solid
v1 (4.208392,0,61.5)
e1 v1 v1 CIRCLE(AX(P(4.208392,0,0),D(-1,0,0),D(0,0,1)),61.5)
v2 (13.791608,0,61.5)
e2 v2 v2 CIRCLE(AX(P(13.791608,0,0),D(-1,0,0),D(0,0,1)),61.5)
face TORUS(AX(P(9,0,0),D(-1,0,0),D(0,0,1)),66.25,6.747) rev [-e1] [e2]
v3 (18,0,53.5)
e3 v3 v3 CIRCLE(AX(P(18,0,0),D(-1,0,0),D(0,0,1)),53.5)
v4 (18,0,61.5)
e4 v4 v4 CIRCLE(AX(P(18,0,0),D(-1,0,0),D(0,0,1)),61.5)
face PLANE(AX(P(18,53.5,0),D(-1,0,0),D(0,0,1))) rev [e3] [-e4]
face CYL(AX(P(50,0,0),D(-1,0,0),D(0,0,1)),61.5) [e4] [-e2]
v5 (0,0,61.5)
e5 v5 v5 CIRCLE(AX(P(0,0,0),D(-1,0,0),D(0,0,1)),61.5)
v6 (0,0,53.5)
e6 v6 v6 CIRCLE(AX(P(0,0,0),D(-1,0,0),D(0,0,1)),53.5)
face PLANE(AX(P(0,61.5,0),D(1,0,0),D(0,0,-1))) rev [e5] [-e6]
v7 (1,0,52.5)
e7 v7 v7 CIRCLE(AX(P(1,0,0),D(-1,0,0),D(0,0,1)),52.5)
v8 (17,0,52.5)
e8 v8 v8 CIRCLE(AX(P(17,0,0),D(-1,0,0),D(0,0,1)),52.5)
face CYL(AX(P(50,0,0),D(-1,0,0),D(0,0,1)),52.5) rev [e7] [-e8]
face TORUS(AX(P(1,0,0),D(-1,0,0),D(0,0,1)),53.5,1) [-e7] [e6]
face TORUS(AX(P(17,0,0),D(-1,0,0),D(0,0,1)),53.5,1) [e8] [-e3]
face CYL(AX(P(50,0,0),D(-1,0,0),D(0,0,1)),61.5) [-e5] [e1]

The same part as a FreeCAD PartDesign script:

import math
import FreeCAD as App
import Part
import Sketcher

V = App.Vector

doc = App.newDocument("Part")
body = doc.addObject("PartDesign::Body", "Body")

sketch1 = doc.addObject("Sketcher::SketchObject", "Sketch")
body.addObject(sketch1)
sketch1.AttachmentSupport = (doc.XY_Plane, [""])
sketch1.MapMode = "FlatFace"
sketch1.addGeometry(Part.LineSegment(V(1, 52.5, 0), V(17, 52.5, 0)), False)
sketch1.addGeometry(Part.ArcOfCircle(Part.Circle(V(17, 53.5, 0), V(0, 0, 1), 1), math.radians(-90), math.radians(0)), False)
sketch1.addGeometry(Part.LineSegment(V(18, 53.5, 0), V(18, 61.5, 0)), False)
sketch1.addGeometry(Part.LineSegment(V(18, 61.5, 0), V(13.8, 61.5, 0)), False)
sketch1.addGeometry(Part.ArcOfCircle(Part.Circle(V(9, 66.2, 0), V(0, 0, 1), 6.7), math.radians(-135), math.radians(-45)), False)
sketch1.addGeometry(Part.LineSegment(V(4.2, 61.5, 0), V(0, 61.5, 0)), False)
sketch1.addGeometry(Part.LineSegment(V(0, 61.5, 0), V(0, 53.5, 0)), False)
sketch1.addGeometry(Part.ArcOfCircle(Part.Circle(V(1, 53.5, 0), V(0, 0, 1), 1), math.radians(-180), math.radians(-90)), False)
sketch1.addConstraint(Sketcher.Constraint("Tangent", 0, 2, 1, 1))
sketch1.addConstraint(Sketcher.Constraint("Tangent", 1, 2, 2, 1))
sketch1.addConstraint(Sketcher.Constraint("Coincident", 2, 2, 3, 1))
sketch1.addConstraint(Sketcher.Constraint("Coincident", 3, 2, 4, 2))
sketch1.addConstraint(Sketcher.Constraint("Coincident", 4, 1, 5, 1))
sketch1.addConstraint(Sketcher.Constraint("Coincident", 5, 2, 6, 1))
sketch1.addConstraint(Sketcher.Constraint("Tangent", 6, 2, 7, 1))
sketch1.addConstraint(Sketcher.Constraint("Tangent", 7, 2, 0, 1))
sketch1.addConstraint(Sketcher.Constraint("Horizontal", 0))
sketch1.addConstraint(Sketcher.Constraint("Vertical", 2))
sketch1.addConstraint(Sketcher.Constraint("Horizontal", 3))
sketch1.addConstraint(Sketcher.Constraint("Horizontal", 5))
sketch1.addConstraint(Sketcher.Constraint("Vertical", 6))
sketch1.addConstraint(Sketcher.Constraint("Equal", 1, 7))
sketch1.addConstraint(Sketcher.Constraint("PointOnObject", 5, 2, -2))
sketch1.addConstraint(Sketcher.Constraint("Horizontal", 3, 2, 4, 1))
sketch1.addConstraint(Sketcher.Constraint("Equal", 3, 5))
sketch1.addConstraint(Sketcher.Constraint("Radius", 1, 1.0))
sketch1.addConstraint(Sketcher.Constraint("DistanceX", 0, 1, 0, 2, 16.0))
sketch1.addConstraint(Sketcher.Constraint("DistanceY", 2, 1, 2, 2, 8.0))
sketch1.addConstraint(Sketcher.Constraint("Radius", 4, 6.747))
sketch1.addConstraint(Sketcher.Constraint("DistanceY", -1, 1, 1, 3, 53.5))
sketch1.addConstraint(Sketcher.Constraint("DistanceY", -1, 1, 4, 3, 66.25))
revolution = doc.addObject("PartDesign::Revolution", "Revolution")
body.addObject(revolution)
revolution.Profile = sketch1
revolution.ReferenceAxis = (sketch1, ["H_Axis"])
revolution.Angle = 360

doc.recompute()
